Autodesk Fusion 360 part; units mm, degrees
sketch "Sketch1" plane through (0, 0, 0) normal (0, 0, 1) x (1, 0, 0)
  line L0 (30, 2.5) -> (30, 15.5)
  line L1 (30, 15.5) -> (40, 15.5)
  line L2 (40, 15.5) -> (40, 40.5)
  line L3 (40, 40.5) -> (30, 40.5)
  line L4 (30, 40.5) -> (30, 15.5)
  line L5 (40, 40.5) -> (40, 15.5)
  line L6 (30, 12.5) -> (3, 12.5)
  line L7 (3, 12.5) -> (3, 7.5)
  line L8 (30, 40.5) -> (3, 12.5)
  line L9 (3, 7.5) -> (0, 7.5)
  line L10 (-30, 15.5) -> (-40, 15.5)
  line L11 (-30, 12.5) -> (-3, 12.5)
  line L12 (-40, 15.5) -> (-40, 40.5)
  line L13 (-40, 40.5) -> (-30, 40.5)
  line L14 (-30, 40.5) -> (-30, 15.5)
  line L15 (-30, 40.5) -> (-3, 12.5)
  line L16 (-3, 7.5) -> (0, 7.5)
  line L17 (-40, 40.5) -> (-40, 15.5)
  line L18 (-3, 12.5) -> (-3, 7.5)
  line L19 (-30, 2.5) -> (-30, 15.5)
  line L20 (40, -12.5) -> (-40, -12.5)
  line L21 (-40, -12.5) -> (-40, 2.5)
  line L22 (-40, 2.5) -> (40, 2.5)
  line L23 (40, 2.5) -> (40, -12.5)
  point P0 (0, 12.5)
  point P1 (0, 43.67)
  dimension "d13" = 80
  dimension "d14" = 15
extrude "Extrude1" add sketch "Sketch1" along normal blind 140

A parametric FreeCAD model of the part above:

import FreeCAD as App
import Part
import Sketcher
Q = App.Units.Quantity

doc = App.newDocument("Part")
body = doc.addObject("PartDesign::Body", "Body")

# Sketch on XY plane
sketch1 = body.newObject("Sketcher::SketchObject", "Sketch")
sketch1.AttachmentSupport = (doc.getObject("XY_Plane"), [""])
sketch1.MapMode = "FlatFace"
sketch1.addGeometry(Part.LineSegment(App.Vector(-30, 2.5, 0), App.Vector(-40, 2.5, 0)), False)
sketch1.addGeometry(Part.LineSegment(App.Vector(-40, 2.5, 0), App.Vector(-40, -12.5, 0)), False)
sketch1.addGeometry(Part.LineSegment(App.Vector(-40, -12.5, 0), App.Vector(40, -12.5, 0)), False)
sketch1.addGeometry(Part.LineSegment(App.Vector(40, -12.5, 0), App.Vector(40, 2.5, 0)), False)
sketch1.addGeometry(Part.LineSegment(App.Vector(40, 2.5, 0), App.Vector(30, 2.5, 0)), False)
sketch1.addGeometry(Part.LineSegment(App.Vector(30, 2.5, 0), App.Vector(30, 15.5, 0)), False)
sketch1.addGeometry(Part.LineSegment(App.Vector(30, 15.5, 0), App.Vector(40, 15.5, 0)), False)
sketch1.addGeometry(Part.LineSegment(App.Vector(40, 15.5, 0), App.Vector(40, 40.5, 0)), False)
sketch1.addGeometry(Part.LineSegment(App.Vector(40, 40.5, 0), App.Vector(30, 40.5, 0)), False)
sketch1.addGeometry(Part.LineSegment(App.Vector(30, 40.5, 0), App.Vector(3, 12.5, 0)), False)
sketch1.addGeometry(Part.LineSegment(App.Vector(3, 12.5, 0), App.Vector(3, 7.5, 0)), False)
sketch1.addGeometry(Part.LineSegment(App.Vector(3, 7.5, 0), App.Vector(-3, 7.5, 0)), False)
sketch1.addGeometry(Part.LineSegment(App.Vector(-3, 7.5, 0), App.Vector(-3, 12.5, 0)), False)
sketch1.addGeometry(Part.LineSegment(App.Vector(-3, 12.5, 0), App.Vector(-30, 40.5, 0)), False)
sketch1.addGeometry(Part.LineSegment(App.Vector(-30, 40.5, 0), App.Vector(-40, 40.5, 0)), False)
sketch1.addGeometry(Part.LineSegment(App.Vector(-40, 40.5, 0), App.Vector(-40, 15.5, 0)), False)
sketch1.addGeometry(Part.LineSegment(App.Vector(-40, 15.5, 0), App.Vector(-30, 15.5, 0)), False)
sketch1.addGeometry(Part.LineSegment(App.Vector(-30, 15.5, 0), App.Vector(-30, 2.5, 0)), False)
sketch1.addConstraint(Sketcher.Constraint("Coincident", 0, 2, 1, 1))
sketch1.addConstraint(Sketcher.Constraint("Coincident", 1, 2, 2, 1))
sketch1.addConstraint(Sketcher.Constraint("Coincident", 2, 2, 3, 1))
sketch1.addConstraint(Sketcher.Constraint("Coincident", 3, 2, 4, 1))
sketch1.addConstraint(Sketcher.Constraint("Coincident", 4, 2, 5, 1))
sketch1.addConstraint(Sketcher.Constraint("Coincident", 5, 2, 6, 1))
sketch1.addConstraint(Sketcher.Constraint("Coincident", 6, 2, 7, 1))
sketch1.addConstraint(Sketcher.Constraint("Coincident", 7, 2, 8, 1))
sketch1.addConstraint(Sketcher.Constraint("Coincident", 8, 2, 9, 1))
sketch1.addConstraint(Sketcher.Constraint("Coincident", 9, 2, 10, 1))
sketch1.addConstraint(Sketcher.Constraint("Coincident", 10, 2, 11, 1))
sketch1.addConstraint(Sketcher.Constraint("Coincident", 11, 2, 12, 1))
sketch1.addConstraint(Sketcher.Constraint("Coincident", 12, 2, 13, 1))
sketch1.addConstraint(Sketcher.Constraint("Coincident", 13, 2, 14, 1))
sketch1.addConstraint(Sketcher.Constraint("Coincident", 14, 2, 15, 1))
sketch1.addConstraint(Sketcher.Constraint("Coincident", 15, 2, 16, 1))
sketch1.addConstraint(Sketcher.Constraint("Coincident", 16, 2, 17, 1))
sketch1.addConstraint(Sketcher.Constraint("Coincident", 17, 2, 0, 1))
sketch1.addConstraint(Sketcher.Constraint("Horizontal", 0))
sketch1.addConstraint(Sketcher.Constraint("Vertical", 1))
sketch1.addConstraint(Sketcher.Constraint("Horizontal", 2))
sketch1.addConstraint(Sketcher.Constraint("Vertical", 3))
sketch1.addConstraint(Sketcher.Constraint("Horizontal", 4))
sketch1.addConstraint(Sketcher.Constraint("Vertical", 5))
sketch1.addConstraint(Sketcher.Constraint("Horizontal", 6))
sketch1.addConstraint(Sketcher.Constraint("Vertical", 7))
sketch1.addConstraint(Sketcher.Constraint("Horizontal", 8))
sketch1.addConstraint(Sketcher.Constraint("Vertical", 10))
sketch1.addConstraint(Sketcher.Constraint("Horizontal", 11))
sketch1.addConstraint(Sketcher.Constraint("Vertical", 12))
sketch1.addConstraint(Sketcher.Constraint("Horizontal", 14))
sketch1.addConstraint(Sketcher.Constraint("Vertical", 15))
sketch1.addConstraint(Sketcher.Constraint("Horizontal", 16))
sketch1.addConstraint(Sketcher.Constraint("Vertical", 17))
sketch1.addConstraint(Sketcher.Constraint("Symmetric", 0, 2, 3, 2, -2))
sketch1.addConstraint(Sketcher.Constraint("Symmetric", 9, 2, 12, 2, -2))
sketch1.addConstraint(Sketcher.Constraint("Symmetric", 8, 2, 13, 2, -2))
sketch1.addConstraint(Sketcher.Constraint("Symmetric", 6, 2, 15, 2, -2))
sketch1.addConstraint(Sketcher.Constraint("Vertical", 3, 2, 6, 2))
sketch1.addConstraint(Sketcher.Constraint("Vertical", 5, 2, 8, 2))
sketch1.addConstraint(Sketcher.Constraint("Vertical", 13, 2, 16, 2))
sketch1.addConstraint(Sketcher.Constraint("DistanceX", 2, 1, 2, 2, Q("80 mm")))
sketch1.addConstraint(Sketcher.Constraint("DistanceY", 1, 2, 1, 1, Q("15 mm")))
sketch1.addConstraint(Sketcher.Constraint("DistanceX", 0, 2, 0, 1, Q("10 mm")))
sketch1.addConstraint(Sketcher.Constraint("DistanceX", 11, 2, 11, 1, Q("6 mm")))
sketch1.addConstraint(Sketcher.Constraint("DistanceY", 5, 1, 5, 2, Q("13 mm")))
sketch1.addConstraint(Sketcher.Constraint("DistanceY", 7, 1, 7, 2, Q("25 mm")))
sketch1.addConstraint(Sketcher.Constraint("DistanceY", 10, 2, 10, 1, Q("5 mm")))
sketch1.addConstraint(Sketcher.Constraint("DistanceY", 9, 2, 5, 2, Q("3 mm")))
sketch1.addConstraint(Sketcher.Constraint("DistanceY", -1, 1, 0, 2, Q("2.5 mm")))
pad1 = body.newObject("PartDesign::Pad", "Pad")
pad1.Profile = sketch1
pad1.Length = 140

doc.recompute()
